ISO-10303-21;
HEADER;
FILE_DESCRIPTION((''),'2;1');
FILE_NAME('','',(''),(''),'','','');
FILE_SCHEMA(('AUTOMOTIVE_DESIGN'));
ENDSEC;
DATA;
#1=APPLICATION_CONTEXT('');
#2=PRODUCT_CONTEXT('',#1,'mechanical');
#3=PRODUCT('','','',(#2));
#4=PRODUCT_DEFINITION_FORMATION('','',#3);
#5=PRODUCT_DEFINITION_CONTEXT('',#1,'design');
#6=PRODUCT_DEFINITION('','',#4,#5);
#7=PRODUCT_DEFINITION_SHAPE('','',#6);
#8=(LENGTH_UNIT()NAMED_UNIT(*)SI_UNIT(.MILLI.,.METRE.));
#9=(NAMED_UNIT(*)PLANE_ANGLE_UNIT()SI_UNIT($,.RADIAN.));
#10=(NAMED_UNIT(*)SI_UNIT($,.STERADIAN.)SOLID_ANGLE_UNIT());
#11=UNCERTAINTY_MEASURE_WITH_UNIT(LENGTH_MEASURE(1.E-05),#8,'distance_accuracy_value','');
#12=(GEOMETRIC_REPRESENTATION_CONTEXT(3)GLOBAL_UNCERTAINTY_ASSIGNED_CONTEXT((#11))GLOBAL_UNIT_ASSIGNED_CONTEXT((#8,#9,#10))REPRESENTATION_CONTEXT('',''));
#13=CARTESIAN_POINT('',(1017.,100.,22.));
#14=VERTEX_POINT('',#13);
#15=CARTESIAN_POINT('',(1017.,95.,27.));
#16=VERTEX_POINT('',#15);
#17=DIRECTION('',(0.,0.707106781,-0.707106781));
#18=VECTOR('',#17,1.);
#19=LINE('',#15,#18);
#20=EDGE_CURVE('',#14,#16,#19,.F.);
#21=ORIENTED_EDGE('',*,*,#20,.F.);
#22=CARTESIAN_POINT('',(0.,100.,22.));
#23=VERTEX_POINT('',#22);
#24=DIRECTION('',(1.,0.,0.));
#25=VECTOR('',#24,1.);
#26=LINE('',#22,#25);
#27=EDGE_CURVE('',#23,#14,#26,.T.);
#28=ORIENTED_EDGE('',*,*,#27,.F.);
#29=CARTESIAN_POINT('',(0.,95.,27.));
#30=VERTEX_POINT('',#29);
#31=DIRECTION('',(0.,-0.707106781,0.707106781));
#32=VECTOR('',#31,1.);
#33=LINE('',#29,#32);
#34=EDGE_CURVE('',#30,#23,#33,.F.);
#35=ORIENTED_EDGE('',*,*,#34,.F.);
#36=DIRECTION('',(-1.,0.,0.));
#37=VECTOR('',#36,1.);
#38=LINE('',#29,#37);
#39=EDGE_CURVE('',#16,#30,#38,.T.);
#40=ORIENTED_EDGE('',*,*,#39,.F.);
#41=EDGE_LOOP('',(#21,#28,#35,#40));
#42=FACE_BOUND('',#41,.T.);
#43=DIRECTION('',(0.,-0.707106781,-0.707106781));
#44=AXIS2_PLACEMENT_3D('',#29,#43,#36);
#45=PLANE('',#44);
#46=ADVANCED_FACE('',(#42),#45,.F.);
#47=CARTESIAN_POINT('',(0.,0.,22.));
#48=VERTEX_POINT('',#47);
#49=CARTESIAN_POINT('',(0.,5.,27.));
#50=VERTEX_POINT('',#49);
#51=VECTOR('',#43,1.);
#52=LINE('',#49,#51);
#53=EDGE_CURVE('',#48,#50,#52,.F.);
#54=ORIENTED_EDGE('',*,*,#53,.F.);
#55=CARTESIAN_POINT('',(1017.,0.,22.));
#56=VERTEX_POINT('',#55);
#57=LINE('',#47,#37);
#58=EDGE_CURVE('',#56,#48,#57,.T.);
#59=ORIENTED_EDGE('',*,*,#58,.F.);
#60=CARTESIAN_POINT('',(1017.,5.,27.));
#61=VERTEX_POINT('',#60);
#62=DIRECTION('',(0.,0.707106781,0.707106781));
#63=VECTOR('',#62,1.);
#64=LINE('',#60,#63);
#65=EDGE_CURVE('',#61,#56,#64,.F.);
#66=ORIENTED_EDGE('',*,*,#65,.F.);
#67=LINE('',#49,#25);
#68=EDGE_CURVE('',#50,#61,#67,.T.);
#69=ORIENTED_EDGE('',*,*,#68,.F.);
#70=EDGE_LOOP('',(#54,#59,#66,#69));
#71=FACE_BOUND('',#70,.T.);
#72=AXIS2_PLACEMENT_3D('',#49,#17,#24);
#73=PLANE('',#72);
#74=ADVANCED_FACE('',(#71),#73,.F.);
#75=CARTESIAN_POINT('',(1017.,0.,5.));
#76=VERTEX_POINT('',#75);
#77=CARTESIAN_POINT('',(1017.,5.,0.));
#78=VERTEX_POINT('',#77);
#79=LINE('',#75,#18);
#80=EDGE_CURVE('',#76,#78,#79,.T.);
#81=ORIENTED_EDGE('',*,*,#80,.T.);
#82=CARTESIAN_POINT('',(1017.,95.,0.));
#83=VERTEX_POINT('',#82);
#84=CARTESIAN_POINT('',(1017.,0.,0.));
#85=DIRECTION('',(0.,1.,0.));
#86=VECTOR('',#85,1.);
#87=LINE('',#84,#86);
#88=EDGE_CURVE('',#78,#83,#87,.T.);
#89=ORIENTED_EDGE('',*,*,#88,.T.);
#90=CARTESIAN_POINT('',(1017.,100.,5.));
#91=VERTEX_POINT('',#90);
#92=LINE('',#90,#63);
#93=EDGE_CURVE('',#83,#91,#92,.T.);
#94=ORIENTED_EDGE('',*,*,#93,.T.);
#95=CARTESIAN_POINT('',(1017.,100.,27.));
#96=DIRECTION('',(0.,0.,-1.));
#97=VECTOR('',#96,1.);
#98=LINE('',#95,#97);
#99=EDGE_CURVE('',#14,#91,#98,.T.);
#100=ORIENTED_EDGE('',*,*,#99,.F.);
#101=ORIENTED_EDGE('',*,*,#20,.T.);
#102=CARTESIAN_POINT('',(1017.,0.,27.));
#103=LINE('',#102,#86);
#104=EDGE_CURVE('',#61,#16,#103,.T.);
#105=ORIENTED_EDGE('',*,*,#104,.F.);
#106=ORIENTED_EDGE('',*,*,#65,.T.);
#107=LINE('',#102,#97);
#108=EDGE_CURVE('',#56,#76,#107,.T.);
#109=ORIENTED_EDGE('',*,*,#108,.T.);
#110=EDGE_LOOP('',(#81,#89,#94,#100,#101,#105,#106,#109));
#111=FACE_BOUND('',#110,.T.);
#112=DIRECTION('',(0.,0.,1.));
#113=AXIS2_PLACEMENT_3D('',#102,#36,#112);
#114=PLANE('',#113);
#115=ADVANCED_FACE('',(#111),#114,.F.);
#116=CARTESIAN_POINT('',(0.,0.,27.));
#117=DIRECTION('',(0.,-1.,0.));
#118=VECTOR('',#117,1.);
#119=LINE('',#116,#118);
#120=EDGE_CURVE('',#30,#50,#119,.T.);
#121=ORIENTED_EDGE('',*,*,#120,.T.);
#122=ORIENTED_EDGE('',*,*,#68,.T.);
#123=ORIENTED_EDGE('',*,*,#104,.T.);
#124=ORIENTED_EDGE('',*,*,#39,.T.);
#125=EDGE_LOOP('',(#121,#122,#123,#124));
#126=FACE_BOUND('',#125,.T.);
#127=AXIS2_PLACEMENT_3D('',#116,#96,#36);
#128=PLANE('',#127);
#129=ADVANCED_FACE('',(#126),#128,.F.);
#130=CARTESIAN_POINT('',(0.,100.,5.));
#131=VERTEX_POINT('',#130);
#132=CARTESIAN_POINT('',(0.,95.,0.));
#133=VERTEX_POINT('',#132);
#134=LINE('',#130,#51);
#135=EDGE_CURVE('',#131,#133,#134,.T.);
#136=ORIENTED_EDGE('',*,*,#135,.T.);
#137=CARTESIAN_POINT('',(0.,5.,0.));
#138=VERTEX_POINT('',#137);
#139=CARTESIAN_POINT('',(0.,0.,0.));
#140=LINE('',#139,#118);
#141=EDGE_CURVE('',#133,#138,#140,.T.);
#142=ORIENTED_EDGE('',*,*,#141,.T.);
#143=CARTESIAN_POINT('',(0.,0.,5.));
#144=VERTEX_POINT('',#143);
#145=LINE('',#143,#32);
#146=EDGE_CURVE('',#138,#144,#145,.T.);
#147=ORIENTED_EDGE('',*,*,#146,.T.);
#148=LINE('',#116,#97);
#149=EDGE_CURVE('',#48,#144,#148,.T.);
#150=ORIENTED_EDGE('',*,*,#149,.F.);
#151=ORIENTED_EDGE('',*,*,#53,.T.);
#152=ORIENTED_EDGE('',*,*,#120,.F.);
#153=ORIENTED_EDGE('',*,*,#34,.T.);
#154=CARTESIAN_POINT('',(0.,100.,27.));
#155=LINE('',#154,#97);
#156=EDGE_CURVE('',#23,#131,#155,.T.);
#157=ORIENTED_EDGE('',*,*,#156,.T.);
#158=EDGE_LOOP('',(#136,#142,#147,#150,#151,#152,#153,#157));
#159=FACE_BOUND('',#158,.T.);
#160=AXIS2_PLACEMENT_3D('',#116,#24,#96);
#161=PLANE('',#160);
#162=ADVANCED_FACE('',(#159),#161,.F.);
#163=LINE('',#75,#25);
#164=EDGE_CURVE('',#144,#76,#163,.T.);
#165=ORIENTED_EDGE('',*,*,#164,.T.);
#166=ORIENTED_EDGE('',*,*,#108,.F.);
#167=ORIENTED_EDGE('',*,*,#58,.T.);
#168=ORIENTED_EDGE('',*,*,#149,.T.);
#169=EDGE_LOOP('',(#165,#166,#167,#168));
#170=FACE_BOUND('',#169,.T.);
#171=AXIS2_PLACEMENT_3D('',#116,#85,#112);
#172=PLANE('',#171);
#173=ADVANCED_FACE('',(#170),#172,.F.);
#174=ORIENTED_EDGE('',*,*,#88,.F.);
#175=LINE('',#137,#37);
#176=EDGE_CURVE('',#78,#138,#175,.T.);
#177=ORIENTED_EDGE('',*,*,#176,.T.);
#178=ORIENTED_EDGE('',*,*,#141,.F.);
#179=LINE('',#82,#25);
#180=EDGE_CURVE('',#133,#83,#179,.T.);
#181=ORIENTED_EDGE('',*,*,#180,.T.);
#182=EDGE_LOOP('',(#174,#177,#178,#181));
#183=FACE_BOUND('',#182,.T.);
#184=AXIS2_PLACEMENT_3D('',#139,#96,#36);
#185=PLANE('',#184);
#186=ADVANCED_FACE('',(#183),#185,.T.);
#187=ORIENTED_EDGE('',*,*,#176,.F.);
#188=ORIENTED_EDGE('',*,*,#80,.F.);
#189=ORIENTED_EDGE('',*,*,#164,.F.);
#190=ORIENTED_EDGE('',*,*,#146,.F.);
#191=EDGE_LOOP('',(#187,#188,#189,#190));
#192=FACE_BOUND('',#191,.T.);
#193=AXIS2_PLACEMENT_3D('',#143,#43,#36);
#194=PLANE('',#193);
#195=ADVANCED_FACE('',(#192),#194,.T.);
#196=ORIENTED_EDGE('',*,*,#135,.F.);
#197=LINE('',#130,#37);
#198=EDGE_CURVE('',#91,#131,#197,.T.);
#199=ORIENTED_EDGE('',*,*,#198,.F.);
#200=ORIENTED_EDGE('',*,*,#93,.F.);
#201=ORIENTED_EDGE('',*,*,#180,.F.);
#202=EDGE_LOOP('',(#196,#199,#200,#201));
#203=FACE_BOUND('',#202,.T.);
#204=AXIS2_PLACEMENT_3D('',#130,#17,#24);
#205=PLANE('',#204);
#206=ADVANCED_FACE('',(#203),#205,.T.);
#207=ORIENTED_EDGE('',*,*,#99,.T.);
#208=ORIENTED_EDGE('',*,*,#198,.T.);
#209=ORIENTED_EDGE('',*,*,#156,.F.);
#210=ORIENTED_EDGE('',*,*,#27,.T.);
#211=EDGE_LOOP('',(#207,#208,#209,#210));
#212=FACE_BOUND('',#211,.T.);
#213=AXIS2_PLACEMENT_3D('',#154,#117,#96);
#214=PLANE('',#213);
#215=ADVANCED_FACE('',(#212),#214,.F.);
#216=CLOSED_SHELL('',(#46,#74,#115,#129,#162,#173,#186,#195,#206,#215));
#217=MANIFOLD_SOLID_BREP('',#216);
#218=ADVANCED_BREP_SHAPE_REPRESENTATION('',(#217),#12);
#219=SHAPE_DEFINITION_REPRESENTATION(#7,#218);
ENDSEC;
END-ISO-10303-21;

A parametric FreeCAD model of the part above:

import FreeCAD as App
import Part
import Sketcher

V = App.Vector


def edges_at(feature, points):
    """Names of the edges that pass closest to the given points."""
    edges = feature.Shape.Edges
    near = lambda p: min(range(len(edges)), key=lambda i: edges[i].distToShape(Part.Vertex(*p))[0])
    return sorted({f"Edge{near(p) + 1}" for p in points})


def add_polygon(sketch, points):
    """Adds a closed chain of lines whose ends are joined by coincident constraints."""
    first, n = sketch.GeometryCount, len(points)
    for a, b in zip(points, points[1:] + points[:1]):
        sketch.addGeometry(Part.LineSegment(App.Vector(*a, 0), App.Vector(*b, 0)), False)
    for i in range(n):
        sketch.addConstraint(Sketcher.Constraint("Coincident", first + i, 2, first + (i + 1) % n, 1))

doc = App.newDocument("Part")
body = doc.addObject("PartDesign::Body", "Body")

# Sketch on XY plane
sketch1 = body.newObject("Sketcher::SketchObject", "Sketch")
sketch1.AttachmentSupport = (doc.getObject("XY_Plane"), [""])
sketch1.MapMode = "FlatFace"
add_polygon(sketch1, [(0, 100), (0, 0), (1017, 0), (1017, 100)])  # lines 0-3
sketch1.addConstraint([
    Sketcher.Constraint("Vertical", 0),
    Sketcher.Constraint("Horizontal", 1),
    Sketcher.Constraint("Vertical", 2),
    Sketcher.Constraint("Horizontal", 3),
    Sketcher.Constraint("Coincident", 0, 2, -1, 1),
    Sketcher.Constraint("DistanceX", 1, 1, 1, 2, 1017.0),
    Sketcher.Constraint("DistanceY", 0, 2, 0, 1, 100.0),
])
pad1 = body.newObject("PartDesign::Pad", "Pad")
pad1.Profile = sketch1
pad1.Length = 27
doc.recompute()

chamfer = body.newObject("PartDesign::Chamfer", "Chamfer")
chamfer.Base = (pad1, edges_at(pad1, [
    (508.5, 100, 27),
    (508.5, 100, 0),
    (508.5, 0, 0),
    (508.5, 0, 27),
]))
chamfer.Size = 5

doc.recompute()
